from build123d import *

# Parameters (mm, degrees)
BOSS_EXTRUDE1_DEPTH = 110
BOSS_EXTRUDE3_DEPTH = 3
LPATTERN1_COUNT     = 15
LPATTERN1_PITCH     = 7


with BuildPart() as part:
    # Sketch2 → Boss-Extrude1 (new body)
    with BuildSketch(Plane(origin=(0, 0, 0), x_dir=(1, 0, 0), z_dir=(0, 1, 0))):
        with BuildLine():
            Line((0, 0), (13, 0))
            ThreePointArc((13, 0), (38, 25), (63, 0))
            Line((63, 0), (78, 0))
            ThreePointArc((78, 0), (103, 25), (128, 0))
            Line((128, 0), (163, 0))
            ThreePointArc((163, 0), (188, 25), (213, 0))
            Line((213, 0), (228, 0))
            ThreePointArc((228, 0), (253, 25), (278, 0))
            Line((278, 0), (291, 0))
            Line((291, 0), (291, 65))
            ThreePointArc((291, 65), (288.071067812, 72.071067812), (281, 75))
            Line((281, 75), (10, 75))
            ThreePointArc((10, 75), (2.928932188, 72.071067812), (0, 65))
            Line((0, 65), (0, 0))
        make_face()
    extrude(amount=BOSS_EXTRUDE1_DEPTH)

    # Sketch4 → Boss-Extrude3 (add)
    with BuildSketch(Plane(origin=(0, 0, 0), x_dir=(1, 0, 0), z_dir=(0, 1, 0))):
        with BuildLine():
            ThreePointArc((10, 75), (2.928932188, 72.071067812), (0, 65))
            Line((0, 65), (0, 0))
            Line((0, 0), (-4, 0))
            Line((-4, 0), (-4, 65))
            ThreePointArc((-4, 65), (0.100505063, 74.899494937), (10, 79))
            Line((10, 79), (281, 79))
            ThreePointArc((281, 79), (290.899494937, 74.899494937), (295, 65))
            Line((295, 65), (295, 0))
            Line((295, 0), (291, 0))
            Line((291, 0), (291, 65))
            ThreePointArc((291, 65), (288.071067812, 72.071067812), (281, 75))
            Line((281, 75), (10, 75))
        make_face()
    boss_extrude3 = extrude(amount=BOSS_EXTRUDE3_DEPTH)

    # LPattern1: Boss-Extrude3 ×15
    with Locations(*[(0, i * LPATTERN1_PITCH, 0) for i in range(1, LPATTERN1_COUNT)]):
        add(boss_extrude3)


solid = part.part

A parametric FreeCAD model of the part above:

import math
import FreeCAD as App
import Part
import Sketcher

V = App.Vector
Q = App.Units.Quantity

doc = App.newDocument("Part")
body = doc.addObject("PartDesign::Body", "Body")

# Sketch on XZ plane
sketch1 = body.newObject("Sketcher::SketchObject", "Sketch")
sketch1.AttachmentSupport = (doc.getObject("XZ_Plane"), [""])
sketch1.MapMode = "FlatFace"
sketch1.addGeometry(Part.LineSegment(V(0, 0, 0), V(13, 0, 0)), False)
sketch1.addGeometry(Part.ArcOfCircle(Part.Circle(V(38, 0, 0), V(0, 0, 1), 25), math.radians(180), math.radians(360)), False)
sketch1.addGeometry(Part.LineSegment(V(63, 0, 0), V(78, 0, 0)), False)
sketch1.addGeometry(Part.ArcOfCircle(Part.Circle(V(103, 0, 0), V(0, 0, 1), 25), math.radians(180), math.radians(360)), False)
sketch1.addGeometry(Part.LineSegment(V(128, 0, 0), V(163, 0, 0)), False)
sketch1.addGeometry(Part.ArcOfCircle(Part.Circle(V(188, 0, 0), V(0, 0, 1), 25), math.radians(180), math.radians(360)), False)
sketch1.addGeometry(Part.LineSegment(V(213, 0, 0), V(228, 0, 0)), False)
sketch1.addGeometry(Part.ArcOfCircle(Part.Circle(V(253, 0, 0), V(0, 0, 1), 25), math.radians(180), math.radians(360)), False)
sketch1.addGeometry(Part.LineSegment(V(278, 0, 0), V(291, 0, 0)), False)
sketch1.addGeometry(Part.LineSegment(V(291, 0, 0), V(291, -65, 0)), False)
sketch1.addGeometry(Part.ArcOfCircle(Part.Circle(V(281, -65, 0), V(0, 0, 1), 10), math.radians(-90), math.radians(0)), False)
sketch1.addGeometry(Part.LineSegment(V(281, -75, 0), V(10, -75, 0)), False)
sketch1.addGeometry(Part.ArcOfCircle(Part.Circle(V(10, -65, 0), V(0, 0, 1), 10), math.radians(180), math.radians(270)), False)
sketch1.addGeometry(Part.LineSegment(V(0, -65, 0), V(0, 0, 0)), False)
sketch1.addConstraint(Sketcher.Constraint("Coincident", 0, 2, 1, 1))
sketch1.addConstraint(Sketcher.Constraint("Coincident", 1, 2, 2, 1))
sketch1.addConstraint(Sketcher.Constraint("Coincident", 2, 2, 3, 1))
sketch1.addConstraint(Sketcher.Constraint("Coincident", 3, 2, 4, 1))
sketch1.addConstraint(Sketcher.Constraint("Coincident", 4, 2, 5, 1))
sketch1.addConstraint(Sketcher.Constraint("Coincident", 5, 2, 6, 1))
sketch1.addConstraint(Sketcher.Constraint("Coincident", 6, 2, 7, 1))
sketch1.addConstraint(Sketcher.Constraint("Coincident", 7, 2, 8, 1))
sketch1.addConstraint(Sketcher.Constraint("Coincident", 8, 2, 9, 1))
sketch1.addConstraint(Sketcher.Constraint("Tangent", 9, 2, 10, 2))
sketch1.addConstraint(Sketcher.Constraint("Tangent", 10, 1, 11, 1))
sketch1.addConstraint(Sketcher.Constraint("Tangent", 11, 2, 12, 2))
sketch1.addConstraint(Sketcher.Constraint("Tangent", 12, 1, 13, 1))
sketch1.addConstraint(Sketcher.Constraint("Coincident", 13, 2, 0, 1))
sketch1.addConstraint(Sketcher.Constraint("Horizontal", 0))
sketch1.addConstraint(Sketcher.Constraint("Horizontal", 2))
sketch1.addConstraint(Sketcher.Constraint("Horizontal", 4))
sketch1.addConstraint(Sketcher.Constraint("Horizontal", 6))
sketch1.addConstraint(Sketcher.Constraint("Horizontal", 8))
sketch1.addConstraint(Sketcher.Constraint("Vertical", 9))
sketch1.addConstraint(Sketcher.Constraint("Horizontal", 11))
sketch1.addConstraint(Sketcher.Constraint("Vertical", 13))
sketch1.addConstraint(Sketcher.Constraint("Coincident", 13, 2, -1, 1))
sketch1.addConstraint(Sketcher.Constraint("Equal", 1, 3))
sketch1.addConstraint(Sketcher.Constraint("Equal", 3, 5))
sketch1.addConstraint(Sketcher.Constraint("Equal", 5, 7))
sketch1.addConstraint(Sketcher.Constraint("Equal", 10, 12))
sketch1.addConstraint(Sketcher.Constraint("PointOnObject", 1, 3, -1))
sketch1.addConstraint(Sketcher.Constraint("PointOnObject", 3, 3, -1))
sketch1.addConstraint(Sketcher.Constraint("PointOnObject", 5, 3, -1))
sketch1.addConstraint(Sketcher.Constraint("PointOnObject", 7, 3, -1))
sketch1.addConstraint(Sketcher.Constraint("PointOnObject", 1, 2, -1))
sketch1.addConstraint(Sketcher.Constraint("PointOnObject", 3, 2, -1))
sketch1.addConstraint(Sketcher.Constraint("PointOnObject", 5, 2, -1))
sketch1.addConstraint(Sketcher.Constraint("PointOnObject", 7, 2, -1))
sketch1.addConstraint(Sketcher.Constraint("Equal", 2, 6))
sketch1.addConstraint(Sketcher.Constraint("Equal", 0, 8))
sketch1.addConstraint(Sketcher.Constraint("Radius", 1, Q("25 mm")))
sketch1.addConstraint(Sketcher.Constraint("Radius", 10, Q("10 mm")))
sketch1.addConstraint(Sketcher.Constraint("DistanceX", 0, 1, 0, 2, Q("13 mm")))
sketch1.addConstraint(Sketcher.Constraint("DistanceX", 2, 1, 2, 2, Q("15 mm")))
sketch1.addConstraint(Sketcher.Constraint("DistanceX", 4, 1, 4, 2, Q("35 mm")))
sketch1.addConstraint(Sketcher.Constraint("DistanceY", 9, 2, 9, 1, Q("65 mm")))
pad1 = body.newObject("PartDesign::Pad", "Pad")
pad1.Profile = sketch1
pad1.Length = 110
pad1.Reversed = True

# Sketch on XZ plane
sketch2 = body.newObject("Sketcher::SketchObject", "Sketch001")
sketch2.AttachmentSupport = (doc.getObject("XZ_Plane"), [""])
sketch2.MapMode = "FlatFace"
sketch2.addGeometry(Part.ArcOfCircle(Part.Circle(V(10, -65, 0), V(0, 0, 1), 10), math.radians(180), math.radians(270)), False)
sketch2.addGeometry(Part.LineSegment(V(10, -75, 0), V(281, -75, 0)), False)
sketch2.addGeometry(Part.ArcOfCircle(Part.Circle(V(281, -65, 0), V(0, 0, 1), 10), math.radians(-90), math.radians(0)), False)
sketch2.addGeometry(Part.LineSegment(V(291, -65, 0), V(291, 0, 0)), False)
sketch2.addGeometry(Part.LineSegment(V(291, 0, 0), V(295, 0, 0)), False)
sketch2.addGeometry(Part.LineSegment(V(295, 0, 0), V(295, -65, 0)), False)
sketch2.addGeometry(Part.ArcOfCircle(Part.Circle(V(281, -65, 0), V(0, 0, 1), 14), math.radians(-90), math.radians(0)), False)
sketch2.addGeometry(Part.LineSegment(V(281, -79, 0), V(10, -79, 0)), False)
sketch2.addGeometry(Part.ArcOfCircle(Part.Circle(V(10, -65, 0), V(0, 0, 1), 14), math.radians(180), math.radians(270)), False)
sketch2.addGeometry(Part.LineSegment(V(-4, -65, 0), V(-4, 0, 0)), False)
sketch2.addGeometry(Part.LineSegment(V(-4, 0, 0), V(0, 0, 0)), False)
sketch2.addGeometry(Part.LineSegment(V(0, 0, 0), V(0, -65, 0)), False)
sketch2.addConstraint(Sketcher.Constraint("Tangent", 0, 2, 1, 1))
sketch2.addConstraint(Sketcher.Constraint("Tangent", 1, 2, 2, 1))
sketch2.addConstraint(Sketcher.Constraint("Tangent", 2, 2, 3, 1))
sketch2.addConstraint(Sketcher.Constraint("Coincident", 3, 2, 4, 1))
sketch2.addConstraint(Sketcher.Constraint("Coincident", 4, 2, 5, 1))
sketch2.addConstraint(Sketcher.Constraint("Tangent", 5, 2, 6, 2))
sketch2.addConstraint(Sketcher.Constraint("Tangent", 6, 1, 7, 1))
sketch2.addConstraint(Sketcher.Constraint("Tangent", 7, 2, 8, 2))
sketch2.addConstraint(Sketcher.Constraint("Tangent", 8, 1, 9, 1))
sketch2.addConstraint(Sketcher.Constraint("Coincident", 9, 2, 10, 1))
sketch2.addConstraint(Sketcher.Constraint("Coincident", 10, 2, 11, 1))
sketch2.addConstraint(Sketcher.Constraint("Tangent", 11, 2, 0, 1))
sketch2.addConstraint(Sketcher.Constraint("Horizontal", 1))
sketch2.addConstraint(Sketcher.Constraint("Vertical", 3))
sketch2.addConstraint(Sketcher.Constraint("Horizontal", 4))
sketch2.addConstraint(Sketcher.Constraint("Vertical", 5))
sketch2.addConstraint(Sketcher.Constraint("Horizontal", 7))
sketch2.addConstraint(Sketcher.Constraint("Vertical", 9))
sketch2.addConstraint(Sketcher.Constraint("Horizontal", 10))
sketch2.addConstraint(Sketcher.Constraint("Vertical", 11))
sketch2.addConstraint(Sketcher.Constraint("Coincident", 10, 2, -1, 1))
sketch2.addConstraint(Sketcher.Constraint("Coincident", 6, 3, 2, 3))
sketch2.addConstraint(Sketcher.Constraint("Coincident", 8, 3, 0, 3))
sketch2.addConstraint(Sketcher.Constraint("Equal", 0, 2))
sketch2.addConstraint(Sketcher.Constraint("PointOnObject", 3, 2, -1))
sketch2.addConstraint(Sketcher.Constraint("Radius", 0, Q("10 mm")))
sketch2.addConstraint(Sketcher.Constraint("Radius", 6, Q("14 mm")))
sketch2.addConstraint(Sketcher.Constraint("DistanceX", 1, 1, 1, 2, Q("271 mm")))
sketch2.addConstraint(Sketcher.Constraint("DistanceY", 3, 1, 3, 2, Q("65 mm")))
pad2 = body.newObject("PartDesign::Pad", "Pad001")
pad2.Profile = sketch2
pad2.Length = 3
pad2.Reversed = True
doc.recompute()

linearpattern = body.newObject("PartDesign::LinearPattern", "LinearPattern")
linearpattern.Originals = [pad2]
linearpattern.Direction = (doc.getObject("Y_Axis"), [""])
linearpattern.Mode = "offset"
linearpattern.Offset = 7
linearpattern.Occurrences = 15
body.Tip = linearpattern

doc.recompute()
